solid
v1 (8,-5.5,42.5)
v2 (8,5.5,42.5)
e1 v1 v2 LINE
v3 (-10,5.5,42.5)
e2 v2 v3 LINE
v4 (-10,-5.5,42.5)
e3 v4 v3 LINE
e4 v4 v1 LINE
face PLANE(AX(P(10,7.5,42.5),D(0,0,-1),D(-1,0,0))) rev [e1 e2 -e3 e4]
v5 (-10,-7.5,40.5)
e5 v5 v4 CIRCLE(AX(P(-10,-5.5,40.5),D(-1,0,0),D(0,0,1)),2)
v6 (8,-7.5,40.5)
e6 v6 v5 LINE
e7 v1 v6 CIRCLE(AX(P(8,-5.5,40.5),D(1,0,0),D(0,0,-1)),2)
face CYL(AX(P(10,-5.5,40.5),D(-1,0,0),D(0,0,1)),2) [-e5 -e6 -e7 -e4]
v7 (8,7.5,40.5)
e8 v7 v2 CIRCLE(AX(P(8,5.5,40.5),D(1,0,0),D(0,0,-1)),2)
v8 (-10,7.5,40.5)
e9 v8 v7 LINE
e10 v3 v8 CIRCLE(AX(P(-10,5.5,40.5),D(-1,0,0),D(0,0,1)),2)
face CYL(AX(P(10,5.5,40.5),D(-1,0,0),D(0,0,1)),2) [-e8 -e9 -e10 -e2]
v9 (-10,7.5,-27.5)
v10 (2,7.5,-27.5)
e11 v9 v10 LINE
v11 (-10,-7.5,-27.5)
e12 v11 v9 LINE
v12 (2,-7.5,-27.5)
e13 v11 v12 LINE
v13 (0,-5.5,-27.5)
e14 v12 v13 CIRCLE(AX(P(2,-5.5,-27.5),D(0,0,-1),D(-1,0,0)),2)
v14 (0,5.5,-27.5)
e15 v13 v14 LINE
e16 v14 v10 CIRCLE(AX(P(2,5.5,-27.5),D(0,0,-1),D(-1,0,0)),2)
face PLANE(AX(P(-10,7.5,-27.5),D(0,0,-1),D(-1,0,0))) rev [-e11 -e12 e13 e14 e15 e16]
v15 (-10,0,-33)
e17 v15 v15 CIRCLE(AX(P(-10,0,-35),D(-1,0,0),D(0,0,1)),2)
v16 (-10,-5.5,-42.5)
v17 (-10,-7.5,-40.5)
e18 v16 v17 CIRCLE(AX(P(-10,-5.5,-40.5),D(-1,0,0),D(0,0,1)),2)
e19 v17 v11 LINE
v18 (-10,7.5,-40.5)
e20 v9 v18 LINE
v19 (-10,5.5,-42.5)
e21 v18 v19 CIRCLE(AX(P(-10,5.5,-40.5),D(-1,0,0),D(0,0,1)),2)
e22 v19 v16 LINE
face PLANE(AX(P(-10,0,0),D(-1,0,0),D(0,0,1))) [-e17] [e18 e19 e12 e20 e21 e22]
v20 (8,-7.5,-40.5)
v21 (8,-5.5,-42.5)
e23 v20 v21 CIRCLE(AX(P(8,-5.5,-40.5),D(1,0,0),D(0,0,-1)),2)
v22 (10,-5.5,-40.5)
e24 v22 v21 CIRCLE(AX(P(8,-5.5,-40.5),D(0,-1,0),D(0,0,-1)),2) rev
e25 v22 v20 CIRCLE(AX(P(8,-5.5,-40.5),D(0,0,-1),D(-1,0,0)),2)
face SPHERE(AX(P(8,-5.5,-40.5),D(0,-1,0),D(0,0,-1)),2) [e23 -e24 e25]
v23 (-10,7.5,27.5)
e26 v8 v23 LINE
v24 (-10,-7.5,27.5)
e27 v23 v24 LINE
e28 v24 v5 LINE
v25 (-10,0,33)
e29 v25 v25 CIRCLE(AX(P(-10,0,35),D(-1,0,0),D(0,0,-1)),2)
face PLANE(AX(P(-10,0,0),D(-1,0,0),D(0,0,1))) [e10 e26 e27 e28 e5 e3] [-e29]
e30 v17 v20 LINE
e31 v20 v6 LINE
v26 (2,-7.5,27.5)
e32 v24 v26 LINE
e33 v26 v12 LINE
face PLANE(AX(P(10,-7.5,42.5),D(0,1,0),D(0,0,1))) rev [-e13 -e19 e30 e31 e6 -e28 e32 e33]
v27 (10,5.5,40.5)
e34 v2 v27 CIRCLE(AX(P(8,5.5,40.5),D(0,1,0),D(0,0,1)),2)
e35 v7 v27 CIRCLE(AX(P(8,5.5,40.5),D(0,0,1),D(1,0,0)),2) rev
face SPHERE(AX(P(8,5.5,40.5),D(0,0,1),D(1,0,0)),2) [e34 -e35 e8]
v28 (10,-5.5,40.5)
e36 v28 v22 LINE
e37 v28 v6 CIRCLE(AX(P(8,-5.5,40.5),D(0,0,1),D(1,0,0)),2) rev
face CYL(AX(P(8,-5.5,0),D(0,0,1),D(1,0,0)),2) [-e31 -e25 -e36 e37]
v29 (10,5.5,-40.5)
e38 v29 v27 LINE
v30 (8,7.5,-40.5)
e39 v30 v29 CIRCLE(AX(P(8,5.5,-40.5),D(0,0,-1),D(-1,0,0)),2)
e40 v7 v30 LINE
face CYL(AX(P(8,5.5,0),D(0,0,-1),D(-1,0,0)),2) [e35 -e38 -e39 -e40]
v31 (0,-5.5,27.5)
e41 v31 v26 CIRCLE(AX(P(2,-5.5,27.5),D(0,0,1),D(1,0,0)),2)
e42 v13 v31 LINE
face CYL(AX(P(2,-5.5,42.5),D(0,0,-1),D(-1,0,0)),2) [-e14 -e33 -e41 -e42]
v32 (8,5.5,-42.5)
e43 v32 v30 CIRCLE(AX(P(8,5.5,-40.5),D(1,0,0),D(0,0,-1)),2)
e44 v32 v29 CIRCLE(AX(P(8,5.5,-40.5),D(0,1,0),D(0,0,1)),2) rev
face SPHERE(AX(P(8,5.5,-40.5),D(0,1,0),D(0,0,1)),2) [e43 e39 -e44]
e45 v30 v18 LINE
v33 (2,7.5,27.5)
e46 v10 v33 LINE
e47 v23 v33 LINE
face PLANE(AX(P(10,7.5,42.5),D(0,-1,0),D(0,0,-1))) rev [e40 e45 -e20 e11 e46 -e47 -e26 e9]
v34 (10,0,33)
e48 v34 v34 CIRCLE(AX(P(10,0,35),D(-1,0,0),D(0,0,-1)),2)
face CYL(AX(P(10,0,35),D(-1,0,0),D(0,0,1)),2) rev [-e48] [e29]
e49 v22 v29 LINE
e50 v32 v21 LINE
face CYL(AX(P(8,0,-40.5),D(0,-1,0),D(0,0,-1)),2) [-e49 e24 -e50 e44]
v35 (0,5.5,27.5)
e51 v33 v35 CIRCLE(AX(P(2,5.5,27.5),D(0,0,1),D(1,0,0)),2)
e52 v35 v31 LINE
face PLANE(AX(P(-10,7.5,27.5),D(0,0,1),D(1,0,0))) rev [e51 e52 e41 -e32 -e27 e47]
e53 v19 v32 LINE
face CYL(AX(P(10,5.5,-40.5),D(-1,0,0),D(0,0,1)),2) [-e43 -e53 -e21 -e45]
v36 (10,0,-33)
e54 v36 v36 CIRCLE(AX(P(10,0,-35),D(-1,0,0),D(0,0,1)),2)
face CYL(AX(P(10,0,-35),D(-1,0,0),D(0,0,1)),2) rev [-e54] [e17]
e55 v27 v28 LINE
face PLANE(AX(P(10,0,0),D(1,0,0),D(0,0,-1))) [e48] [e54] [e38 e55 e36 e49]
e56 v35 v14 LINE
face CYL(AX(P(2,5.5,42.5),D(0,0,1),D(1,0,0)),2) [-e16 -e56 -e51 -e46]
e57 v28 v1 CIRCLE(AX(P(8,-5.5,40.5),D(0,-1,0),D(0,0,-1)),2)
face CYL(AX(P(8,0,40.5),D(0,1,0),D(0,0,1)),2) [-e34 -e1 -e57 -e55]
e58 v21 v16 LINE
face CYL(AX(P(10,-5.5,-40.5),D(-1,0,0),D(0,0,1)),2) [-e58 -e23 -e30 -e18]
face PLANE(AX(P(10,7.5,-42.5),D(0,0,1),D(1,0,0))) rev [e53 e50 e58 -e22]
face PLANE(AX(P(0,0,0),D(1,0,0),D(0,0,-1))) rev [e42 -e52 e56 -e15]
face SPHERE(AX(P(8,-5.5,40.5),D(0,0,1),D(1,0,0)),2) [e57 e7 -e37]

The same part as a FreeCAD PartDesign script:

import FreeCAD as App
import Part
import Sketcher
from FreeCAD import Vector


def edges_at(feature, points):
    """Names of the edges that pass closest to the given points."""
    edges = feature.Shape.Edges
    near = lambda p: min(range(len(edges)), key=lambda i: edges[i].distToShape(Part.Vertex(*p))[0])
    return sorted({f"Edge{near(p) + 1}" for p in points})

doc = App.newDocument("Part")
body = doc.addObject("PartDesign::Body", "Body")

# Sketch on YZ plane
sketch1 = doc.addObject("Sketcher::SketchObject", "Sketch")
body.addObject(sketch1)
sketch1.AttachmentSupport = (doc.YZ_Plane, [""])
sketch1.MapMode = "FlatFace"
sketch1.addGeometry([
    Part.LineSegment(Vector(7.5, 42.5, 0), Vector(-7.5, 42.5, 0)),
    Part.LineSegment(Vector(-7.5, 42.5, 0), Vector(-7.5, -42.5, 0)),
    Part.LineSegment(Vector(-7.5, -42.5, 0), Vector(7.5, -42.5, 0)),
    Part.LineSegment(Vector(7.5, -42.5, 0), Vector(7.5, 42.5, 0)),
], False)
sketch1.addConstraint([
    Sketcher.Constraint("Coincident", 0, 2, 1, 1),
    Sketcher.Constraint("Coincident", 1, 2, 2, 1),
    Sketcher.Constraint("Coincident", 2, 2, 3, 1),
    Sketcher.Constraint("Coincident", 3, 2, 0, 1),
    Sketcher.Constraint("Horizontal", 0),
    Sketcher.Constraint("Vertical", 1),
    Sketcher.Constraint("Horizontal", 2),
    Sketcher.Constraint("Vertical", 3),
    Sketcher.Constraint("Symmetric", 0, 2, 2, 2, -1, 1),
    Sketcher.Constraint("DistanceX", 0, 2, 0, 1, 15.0),
    Sketcher.Constraint("DistanceY", 1, 2, 1, 1, 85.0),
])
pad1 = doc.addObject("PartDesign::Pad", "Pad")
body.addObject(pad1)
pad1.Profile = sketch1
pad1.Length = 10

# Sketch on YZ plane
sketch2 = doc.addObject("Sketcher::SketchObject", "Sketch001")
body.addObject(sketch2)
sketch2.AttachmentSupport = (doc.YZ_Plane, [""])
sketch2.MapMode = "FlatFace"
sketch2.addGeometry([
    Part.LineSegment(Vector(7.5, -42.5, 0), Vector(-7.5, -42.5, 0)),  # 0
    Part.LineSegment(Vector(-7.5, -42.5, 0), Vector(-7.5, -27.5, 0)),  # 1
    Part.LineSegment(Vector(-7.5, -27.5, 0), Vector(7.5, -27.5, 0)),  # 2
    Part.LineSegment(Vector(7.5, -27.5, 0), Vector(7.5, -42.5, 0)),  # 3
    Part.LineSegment(Vector(7.5, 27.5, 0), Vector(-7.5, 27.5, 0)),  # 4
    Part.LineSegment(Vector(-7.5, 27.5, 0), Vector(-7.5, 42.5, 0)),  # 5
    Part.LineSegment(Vector(-7.5, 42.5, 0), Vector(7.5, 42.5, 0)),  # 6
    Part.LineSegment(Vector(7.5, 42.5, 0), Vector(7.5, 27.5, 0)),  # 7
], False)
sketch2.addConstraint([
    Sketcher.Constraint("Coincident", 0, 2, 1, 1),
    Sketcher.Constraint("Coincident", 1, 2, 2, 1),
    Sketcher.Constraint("Coincident", 2, 2, 3, 1),
    Sketcher.Constraint("Coincident", 3, 2, 0, 1),
    Sketcher.Constraint("Coincident", 4, 2, 5, 1),
    Sketcher.Constraint("Coincident", 5, 2, 6, 1),
    Sketcher.Constraint("Coincident", 6, 2, 7, 1),
    Sketcher.Constraint("Coincident", 7, 2, 4, 1),
    Sketcher.Constraint("Horizontal", 0),
    Sketcher.Constraint("Vertical", 1),
    Sketcher.Constraint("Horizontal", 2),
    Sketcher.Constraint("Vertical", 3),
    Sketcher.Constraint("Horizontal", 4),
    Sketcher.Constraint("Vertical", 5),
    Sketcher.Constraint("Horizontal", 6),
    Sketcher.Constraint("Vertical", 7),
    Sketcher.Constraint("Symmetric", 2, 2, 4, 2, -1, 1),
    Sketcher.Constraint("Symmetric", 0, 2, 6, 2, -1, 1),
    Sketcher.Constraint("Vertical", 1, 2, 4, 2),
    Sketcher.Constraint("Equal", 6, 1),
    Sketcher.Constraint("DistanceX", 0, 2, 0, 1, 15.0),
    Sketcher.Constraint("DistanceY", 1, 2, 4, 2, 55.0),
])
pad2 = doc.addObject("PartDesign::Pad", "Pad001")
body.addObject(pad2)
pad2.Profile = sketch2
pad2.Length = 10
pad2.Reversed = True
doc.recompute()

fillet = doc.addObject("PartDesign::Fillet", "Fillet")
body.addObject(fillet)
fillet.Base = (pad2, edges_at(pad2, [
    (10, 0, 42.5),
    (0, -7.5, 0),
    (0, 7.5, 0),
    (10, -7.5, 0),
    (10, 0, -42.5),
    (0, -7.5, -42.5),
    (0, -7.5, 42.5),
    (0, 7.5, 42.5),
    (0, 7.5, -42.5),
    (10, 7.5, 0),
]))
fillet.Radius = 2

# Sketch on YZ plane
sketch3 = doc.addObject("Sketcher::SketchObject", "Sketch002")
body.addObject(sketch3)
sketch3.AttachmentSupport = (doc.YZ_Plane, [""])
sketch3.MapMode = "FlatFace"
sketch3.AttachmentOffset = App.Placement(Vector(0, 0, -10), App.Rotation())
sketch3.addGeometry([
    Part.Circle(Vector(0, -35, 0), Vector(0, 0, 1), 2),
    Part.Circle(Vector(0, 35, 0), Vector(0, 0, 1), 2),
], False)
sketch3.addConstraint([
    Sketcher.Constraint("Equal", 0, 1),
    Sketcher.Constraint("Symmetric", 0, 3, 1, 3, -1, 1),
    Sketcher.Constraint("PointOnObject", 0, 3, -2),
    Sketcher.Constraint("Diameter", 0, 4.0),
    Sketcher.Constraint("DistanceY", 0, 3, -1, 1, 35.0),
])
pocket1 = doc.addObject("PartDesign::Pocket", "Pocket")
body.addObject(pocket1)
pocket1.Profile = sketch3
pocket1.Type = "ThroughAll"
pocket1.Reversed = True

doc.recompute()
